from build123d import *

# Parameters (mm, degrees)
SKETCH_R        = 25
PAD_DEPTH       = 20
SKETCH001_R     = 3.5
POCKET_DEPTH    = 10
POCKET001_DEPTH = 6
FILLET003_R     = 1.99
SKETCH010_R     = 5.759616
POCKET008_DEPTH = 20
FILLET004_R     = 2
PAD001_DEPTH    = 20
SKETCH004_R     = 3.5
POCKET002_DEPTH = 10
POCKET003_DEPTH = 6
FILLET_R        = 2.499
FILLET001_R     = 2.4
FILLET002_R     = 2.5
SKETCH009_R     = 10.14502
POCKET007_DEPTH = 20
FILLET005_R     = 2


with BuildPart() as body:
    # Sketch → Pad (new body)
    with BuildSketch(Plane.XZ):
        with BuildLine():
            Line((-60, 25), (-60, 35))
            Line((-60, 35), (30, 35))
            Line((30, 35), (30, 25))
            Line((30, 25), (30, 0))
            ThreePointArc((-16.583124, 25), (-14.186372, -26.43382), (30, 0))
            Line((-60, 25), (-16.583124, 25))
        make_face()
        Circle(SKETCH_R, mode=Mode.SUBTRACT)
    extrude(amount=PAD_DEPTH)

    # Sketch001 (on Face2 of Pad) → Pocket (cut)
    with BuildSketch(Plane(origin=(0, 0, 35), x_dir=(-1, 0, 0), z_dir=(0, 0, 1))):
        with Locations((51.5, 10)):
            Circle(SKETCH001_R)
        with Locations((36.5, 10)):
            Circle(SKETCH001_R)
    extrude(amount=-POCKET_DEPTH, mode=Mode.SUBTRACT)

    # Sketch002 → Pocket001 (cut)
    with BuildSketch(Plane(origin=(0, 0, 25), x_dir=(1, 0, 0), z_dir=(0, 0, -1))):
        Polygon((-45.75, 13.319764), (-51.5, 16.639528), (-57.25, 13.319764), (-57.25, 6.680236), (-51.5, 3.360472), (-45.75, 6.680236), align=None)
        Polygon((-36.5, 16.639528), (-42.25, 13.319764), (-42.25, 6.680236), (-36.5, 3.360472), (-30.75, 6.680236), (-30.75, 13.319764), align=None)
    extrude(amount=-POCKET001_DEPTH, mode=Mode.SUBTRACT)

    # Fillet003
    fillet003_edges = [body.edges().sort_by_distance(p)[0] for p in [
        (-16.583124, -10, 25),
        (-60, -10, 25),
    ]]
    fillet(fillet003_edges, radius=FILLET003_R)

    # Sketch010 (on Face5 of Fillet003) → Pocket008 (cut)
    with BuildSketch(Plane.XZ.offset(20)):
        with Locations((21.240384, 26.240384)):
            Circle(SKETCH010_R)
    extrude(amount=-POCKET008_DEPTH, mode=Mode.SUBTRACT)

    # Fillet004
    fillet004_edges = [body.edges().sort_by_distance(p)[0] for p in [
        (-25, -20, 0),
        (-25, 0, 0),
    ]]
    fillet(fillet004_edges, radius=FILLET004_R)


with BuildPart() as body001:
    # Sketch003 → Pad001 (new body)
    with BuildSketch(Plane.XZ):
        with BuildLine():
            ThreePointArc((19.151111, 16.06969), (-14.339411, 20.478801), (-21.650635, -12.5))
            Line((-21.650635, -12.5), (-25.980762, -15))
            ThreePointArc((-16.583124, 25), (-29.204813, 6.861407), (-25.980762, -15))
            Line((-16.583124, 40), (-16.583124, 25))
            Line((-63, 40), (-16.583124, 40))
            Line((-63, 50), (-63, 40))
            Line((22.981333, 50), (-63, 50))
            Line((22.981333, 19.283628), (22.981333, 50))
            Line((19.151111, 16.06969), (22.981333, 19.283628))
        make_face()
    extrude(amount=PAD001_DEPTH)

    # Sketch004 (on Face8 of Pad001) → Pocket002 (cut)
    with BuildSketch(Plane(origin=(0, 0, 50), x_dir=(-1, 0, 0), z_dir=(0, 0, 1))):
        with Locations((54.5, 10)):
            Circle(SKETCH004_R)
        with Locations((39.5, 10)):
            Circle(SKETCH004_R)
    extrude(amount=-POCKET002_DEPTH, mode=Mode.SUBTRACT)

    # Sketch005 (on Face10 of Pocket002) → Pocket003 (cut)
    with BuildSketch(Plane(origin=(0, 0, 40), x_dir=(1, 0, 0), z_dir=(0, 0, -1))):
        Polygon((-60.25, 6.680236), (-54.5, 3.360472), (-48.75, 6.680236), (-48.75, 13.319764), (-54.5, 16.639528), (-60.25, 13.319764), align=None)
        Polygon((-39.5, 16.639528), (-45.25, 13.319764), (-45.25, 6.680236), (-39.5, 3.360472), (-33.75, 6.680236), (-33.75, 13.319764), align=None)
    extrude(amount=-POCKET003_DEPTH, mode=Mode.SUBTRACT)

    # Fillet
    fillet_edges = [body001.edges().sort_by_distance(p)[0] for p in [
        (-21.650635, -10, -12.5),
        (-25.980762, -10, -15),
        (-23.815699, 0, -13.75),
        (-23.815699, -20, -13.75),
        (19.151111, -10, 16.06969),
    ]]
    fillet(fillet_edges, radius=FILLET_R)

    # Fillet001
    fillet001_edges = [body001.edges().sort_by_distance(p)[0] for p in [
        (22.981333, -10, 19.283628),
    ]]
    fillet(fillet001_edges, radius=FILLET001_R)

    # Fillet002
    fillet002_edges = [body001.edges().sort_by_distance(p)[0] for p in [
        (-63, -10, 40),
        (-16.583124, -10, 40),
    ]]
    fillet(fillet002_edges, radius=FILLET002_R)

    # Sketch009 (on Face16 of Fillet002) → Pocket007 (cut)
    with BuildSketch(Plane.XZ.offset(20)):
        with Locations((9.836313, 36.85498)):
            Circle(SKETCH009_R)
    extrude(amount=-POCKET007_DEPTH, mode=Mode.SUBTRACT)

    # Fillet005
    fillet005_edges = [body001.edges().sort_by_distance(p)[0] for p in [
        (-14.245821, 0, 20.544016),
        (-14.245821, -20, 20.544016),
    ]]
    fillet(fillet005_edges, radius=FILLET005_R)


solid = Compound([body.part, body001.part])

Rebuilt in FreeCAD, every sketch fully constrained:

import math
import FreeCAD as App
import Part
import Sketcher

V = App.Vector
Q = App.Units.Quantity


def edges_at(feature, points):
    """Names of the edges that pass closest to the given points."""
    edges = feature.Shape.Edges
    near = lambda p: min(range(len(edges)), key=lambda i: edges[i].distToShape(Part.Vertex(*p))[0])
    return sorted({f"Edge{near(p) + 1}" for p in points})


def add_polygon(sketch, points):
    """Adds a closed chain of lines whose ends are joined by coincident constraints."""
    first, n = sketch.GeometryCount, len(points)
    for a, b in zip(points, points[1:] + points[:1]):
        sketch.addGeometry(Part.LineSegment(App.Vector(*a, 0), App.Vector(*b, 0)), False)
    for i in range(n):
        sketch.addConstraint(Sketcher.Constraint("Coincident", first + i, 2, first + (i + 1) % n, 1))

doc = App.newDocument("Part")
params = doc.addObject("Spreadsheet::Sheet", "Params")
for row, (alias, value) in enumerate([
    ("sketch1_diameter", "50 mm"),
    ("sketch1_radius", "30 mm"),
    ("sketch1_width", "90 mm"),
    ("sketch1_height", "10 mm"),
    ("sketch1_height2", "35 mm"),
    ("pad1_length", "20 mm"),
    ("sketch2_diameter", "7 mm"),
    ("pocket1_length", "10 mm"),
    ("pocket2_length", "6 mm"),
    ("fillet_radius", "1.99 mm"),
    ("pocket3_length", "20 mm"),
    ("fillet2_radius", "2 mm"),
    ("sketch5_radius", "25 mm"),
    ("sketch5_radius2", "29.999999 mm"),
    ("sketch5_height", "10 mm"),
    ("sketch5_height2", "15 mm"),
    ("pad2_length", "20 mm"),
    ("sketch6_diameter", "7 mm"),
    ("pocket4_length", "10 mm"),
    ("pocket5_length", "6 mm"),
    ("fillet3_radius", "2.499 mm"),
    ("fillet4_radius", "2.4 mm"),
    ("fillet5_radius", "2.5 mm"),
    ("pocket6_length", "20 mm"),
    ("fillet6_radius", "2 mm"),
], start=1):
    params.set(f"A{row}", alias)
    params.set(f"B{row}", "=" + value)
    params.setAlias(f"B{row}", alias)

body = doc.addObject("PartDesign::Body", "Body")

# Sketch on XZ plane
sketch1 = body.newObject("Sketcher::SketchObject", "Sketch")
sketch1.AttachmentSupport = (doc.getObject("XZ_Plane"), [""])
sketch1.MapMode = "FlatFace"
sketch1.addGeometry(Part.LineSegment(V(-60, 35, 0), V(-60, 25, 0)), False)
sketch1.addGeometry(Part.LineSegment(V(-60, 25, 0), V(-17, 25, 0)), False)
sketch1.addGeometry(Part.ArcOfCircle(Part.Circle(V(0, 0, 0), V(0, 0, 1), 30), math.radians(124), math.radians(360)), False)
sketch1.addGeometry(Part.LineSegment(V(30, 0, 0), V(30, 35, 0)), False)
sketch1.addGeometry(Part.LineSegment(V(30, 35, 0), V(-60, 35, 0)), False)
sketch1.addGeometry(Part.Circle(V(0, 0, 0), V(0, 0, 1), 25), False)
sketch1.addConstraint(Sketcher.Constraint("Coincident", 0, 2, 1, 1))
sketch1.addConstraint(Sketcher.Constraint("Coincident", 1, 2, 2, 1))
sketch1.addConstraint(Sketcher.Constraint("Tangent", 2, 2, 3, 1))
sketch1.addConstraint(Sketcher.Constraint("Coincident", 3, 2, 4, 1))
sketch1.addConstraint(Sketcher.Constraint("Coincident", 4, 2, 0, 1))
sketch1.addConstraint(Sketcher.Constraint("Vertical", 0))
sketch1.addConstraint(Sketcher.Constraint("Horizontal", 1))
sketch1.addConstraint(Sketcher.Constraint("Vertical", 3))
sketch1.addConstraint(Sketcher.Constraint("Horizontal", 4))
sketch1.addConstraint(Sketcher.Constraint("Coincident", 2, 3, -1, 1))
sketch1.addConstraint(Sketcher.Constraint("Coincident", 5, 3, -1, 1))
sketch1.addConstraint(Sketcher.Constraint("Diameter", 5, 50.0))
sketch1.addConstraint(Sketcher.Constraint("Radius", 2, 30.0))
sketch1.addConstraint(Sketcher.Constraint("DistanceX", 4, 2, 4, 1, 90.0))
sketch1.addConstraint(Sketcher.Constraint("DistanceY", 0, 2, 0, 1, 10.0))
sketch1.addConstraint(Sketcher.Constraint("DistanceY", 3, 1, 3, 2, 35.0))
sketch1.setExpression("Constraints[11]", "Params.sketch1_diameter")
sketch1.setExpression("Constraints[12]", "Params.sketch1_radius")
sketch1.setExpression("Constraints[13]", "Params.sketch1_width")
sketch1.setExpression("Constraints[14]", "Params.sketch1_height")
sketch1.setExpression("Constraints[15]", "Params.sketch1_height2")
pad1 = body.newObject("PartDesign::Pad", "Pad")
pad1.Profile = sketch1
pad1.setExpression("Length", "Params.pad1_length")

# Sketch on XY plane
sketch2 = body.newObject("Sketcher::SketchObject", "Sketch001")
sketch2.AttachmentSupport = (doc.getObject("XY_Plane"), [""])
sketch2.MapMode = "FlatFace"
sketch2.AttachmentOffset = App.Placement(V(0, 0, 35), App.Rotation())
sketch2.addGeometry(Part.Circle(V(-51.5, -10, 0), V(0, 0, 1), 3.5), False)
sketch2.addGeometry(Part.Circle(V(-36.5, -10, 0), V(0, 0, 1), 3.5), False)
sketch2.addConstraint(Sketcher.Constraint("Equal", 0, 1))
sketch2.addConstraint(Sketcher.Constraint("Horizontal", 0, 3, 1, 3))
sketch2.addConstraint(Sketcher.Constraint("Diameter", 0, 7.0))
sketch2.addConstraint(Sketcher.Constraint("DistanceY", 0, 3, -1, 1, 10.0))
sketch2.addConstraint(Sketcher.Constraint("DistanceX", 0, 3, 1, 3, 15.0))
sketch2.addConstraint(Sketcher.Constraint("DistanceX", 0, 3, -1, 1, 51.5))
sketch2.setExpression("Constraints[2]", "Params.sketch2_diameter")
pocket1 = body.newObject("PartDesign::Pocket", "Pocket")
pocket1.Profile = sketch2
pocket1.setExpression("Length", "Params.pocket1_length")

# Sketch on XY plane
sketch3 = body.newObject("Sketcher::SketchObject", "Sketch002")
sketch3.AttachmentSupport = (doc.getObject("XY_Plane"), [""])
sketch3.MapMode = "FlatFace"
sketch3.AttachmentOffset = App.Placement(V(0, 0, 25), App.Rotation())
add_polygon(sketch3, [(-46, -13), (-52, -17), (-57, -13), (-57, -7), (-52, -3), (-46, -7)])  # lines 0-5
add_polygon(sketch3, [(-36, -17), (-42, -13), (-42, -7), (-36, -3), (-31, -7), (-31, -13)])  # lines 6-11
sketch3.addConstraint(Sketcher.Constraint("Vertical", 2))
sketch3.addConstraint(Sketcher.Constraint("Vertical", 5))
sketch3.addConstraint(Sketcher.Constraint("Vertical", 7))
sketch3.addConstraint(Sketcher.Constraint("Vertical", 10))
sketch3.addConstraint(Sketcher.Constraint("Parallel", 0, 3))
sketch3.addConstraint(Sketcher.Constraint("Parallel", 1, 4))
sketch3.addConstraint(Sketcher.Constraint("Parallel", 4, 6))
sketch3.addConstraint(Sketcher.Constraint("Parallel", 3, 8))
sketch3.addConstraint(Sketcher.Constraint("Parallel", 6, 9))
sketch3.addConstraint(Sketcher.Constraint("Parallel", 8, 11))
sketch3.addConstraint(Sketcher.Constraint("Horizontal", 2, 2, 4, 2))
sketch3.addConstraint(Sketcher.Constraint("Horizontal", 1, 2, 5, 2))
sketch3.addConstraint(Sketcher.Constraint("Horizontal", 5, 2, 6, 2))
sketch3.addConstraint(Sketcher.Constraint("Horizontal", 4, 2, 7, 2))
sketch3.addConstraint(Sketcher.Constraint("Horizontal", 3, 2, 8, 2))
sketch3.addConstraint(Sketcher.Constraint("Horizontal", 7, 2, 9, 2))
sketch3.addConstraint(Sketcher.Constraint("Horizontal", 6, 2, 10, 2))
sketch3.addConstraint(Sketcher.Constraint("Vertical", 0, 2, 3, 2))
sketch3.addConstraint(Sketcher.Constraint("Angle", 0, Q("-150 deg")))
sketch3.addConstraint(Sketcher.Constraint("DistanceX", 1, 2, 6, 2, 15.0))
sketch3.addConstraint(Sketcher.Constraint("DistanceX", 0, 2, -1, 1, 51.5))
sketch3.addConstraint(Sketcher.Constraint("DistanceX", 2, 2, 4, 2, 11.5))
sketch3.addConstraint(Sketcher.Constraint("DistanceY", 2, 1, 2, 2, 6.639528))
sketch3.addConstraint(Sketcher.Constraint("DistanceY", 0, 2, -1, 1, 16.639528))
pocket2 = body.newObject("PartDesign::Pocket", "Pocket001")
pocket2.Profile = sketch3
pocket2.setExpression("Length", "Params.pocket2_length")
pocket2.Reversed = True
doc.recompute()

fillet = body.newObject("PartDesign::Fillet", "Fillet")
fillet.Base = (pocket2, edges_at(pocket2, [(-16.583, -10, 25), (-60, -10, 25)]))
fillet.setExpression("Radius", "Params.fillet_radius")

# Sketch on XZ plane
sketch4 = body.newObject("Sketcher::SketchObject", "Sketch003")
sketch4.AttachmentSupport = (doc.getObject("XZ_Plane"), [""])
sketch4.MapMode = "FlatFace"
sketch4.AttachmentOffset = App.Placement(V(0, 0, 20), App.Rotation())
sketch4.addGeometry(Part.Circle(V(21, 26, 0), V(0, 0, 1), 6), False)
sketch4.addConstraint(Sketcher.Constraint("Diameter", 0, 11.519232))
sketch4.addConstraint(Sketcher.Constraint("DistanceX", -1, 1, 0, 3, 21.240384))
sketch4.addConstraint(Sketcher.Constraint("DistanceY", -1, 1, 0, 3, 26.240384))
pocket3 = body.newObject("PartDesign::Pocket", "Pocket002")
pocket3.Profile = sketch4
pocket3.setExpression("Length", "Params.pocket3_length")
doc.recompute()

fillet2 = body.newObject("PartDesign::Fillet", "Fillet001")
fillet2.Base = (pocket3, edges_at(pocket3, [(-25, -20, 0), (-25, 0, 0)]))
fillet2.setExpression("Radius", "Params.fillet2_radius")
body2 = doc.addObject("PartDesign::Body", "Body001")

# Sketch on XZ plane
sketch5 = body2.newObject("Sketcher::SketchObject", "Sketch004")
sketch5.AttachmentSupport = (doc.getObject("XZ_Plane001"), [""])
sketch5.MapMode = "FlatFace"
sketch5.addGeometry(Part.ArcOfCircle(Part.Circle(V(0, 0, 0), V(0, 0, 1), 25), math.radians(40), math.radians(210)), False)
sketch5.addGeometry(Part.LineSegment(V(19.2, 16.1, 0), V(23, 19.3, 0)), False)
sketch5.addGeometry(Part.LineSegment(V(23, 19.3, 0), V(23, 50, 0)), False)
sketch5.addGeometry(Part.LineSegment(V(23, 50, 0), V(-63, 50, 0)), False)
sketch5.addGeometry(Part.LineSegment(V(-63, 50, 0), V(-63, 40, 0)), False)
sketch5.addGeometry(Part.LineSegment(V(-63, 40, 0), V(-16.6, 40, 0)), False)
sketch5.addGeometry(Part.LineSegment(V(-16.6, 40, 0), V(-16.6, 25, 0)), False)
sketch5.addGeometry(Part.ArcOfCircle(Part.Circle(V(0, 0, 0), V(0, 0, 1), 30), math.radians(124), math.radians(210)), False)
sketch5.addGeometry(Part.LineSegment(V(-26, -15, 0), V(-21.7, -12.5, 0)), False)
sketch5.addConstraint(Sketcher.Constraint("Coincident", 0, 1, 1, 1))
sketch5.addConstraint(Sketcher.Constraint("Coincident", 1, 2, 2, 1))
sketch5.addConstraint(Sketcher.Constraint("Coincident", 2, 2, 3, 1))
sketch5.addConstraint(Sketcher.Constraint("Coincident", 3, 2, 4, 1))
sketch5.addConstraint(Sketcher.Constraint("Coincident", 4, 2, 5, 1))
sketch5.addConstraint(Sketcher.Constraint("Coincident", 5, 2, 6, 1))
sketch5.addConstraint(Sketcher.Constraint("Coincident", 6, 2, 7, 1))
sketch5.addConstraint(Sketcher.Constraint("Coincident", 7, 2, 8, 1))
sketch5.addConstraint(Sketcher.Constraint("Coincident", 8, 2, 0, 2))
sketch5.addConstraint(Sketcher.Constraint("Vertical", 2))
sketch5.addConstraint(Sketcher.Constraint("Horizontal", 3))
sketch5.addConstraint(Sketcher.Constraint("Vertical", 4))
sketch5.addConstraint(Sketcher.Constraint("Horizontal", 5))
sketch5.addConstraint(Sketcher.Constraint("Vertical", 6))
sketch5.addConstraint(Sketcher.Constraint("Coincident", 0, 3, -1, 1))
sketch5.addConstraint(Sketcher.Constraint("Coincident", 7, 3, -1, 1))
sketch5.addConstraint(Sketcher.Constraint("Equal", 1, 8))
sketch5.addConstraint(Sketcher.Constraint("Radius", 0, 25.0))
sketch5.addConstraint(Sketcher.Constraint("Radius", 7, 29.999999))
sketch5.addConstraint(Sketcher.Constraint("DistanceY", 4, 2, 4, 1, 10.0))
sketch5.addConstraint(Sketcher.Constraint("DistanceY", 6, 2, 6, 1, 15.0))
sketch5.addConstraint(Sketcher.Constraint("Angle", 1, Q("40.000001 deg")))
sketch5.addConstraint(Sketcher.Constraint("Angle", 8, Q("30 deg")))
sketch5.addConstraint(Sketcher.Constraint("DistanceY", -1, 1, 2, 2, 50.0))
sketch5.addConstraint(Sketcher.Constraint("DistanceX", 3, 2, -1, 1, 63.0))
sketch5.addConstraint(Sketcher.Constraint("DistanceY", 7, 2, -1, 1, 15.0))
sketch5.addConstraint(Sketcher.Constraint("DistanceY", 2, 1, 2, 2, 30.716372))
sketch5.setExpression("Constraints[17]", "Params.sketch5_radius")
sketch5.setExpression("Constraints[18]", "Params.sketch5_radius2")
sketch5.setExpression("Constraints[19]", "Params.sketch5_height")
sketch5.setExpression("Constraints[20]", "Params.sketch5_height2")
pad2 = body2.newObject("PartDesign::Pad", "Pad001")
pad2.Profile = sketch5
pad2.setExpression("Length", "Params.pad2_length")

# Sketch on XY plane
sketch6 = body2.newObject("Sketcher::SketchObject", "Sketch005")
sketch6.AttachmentSupport = (doc.getObject("XY_Plane001"), [""])
sketch6.MapMode = "FlatFace"
sketch6.AttachmentOffset = App.Placement(V(0, 0, 50), App.Rotation())
sketch6.addGeometry(Part.Circle(V(-54.5, -10, 0), V(0, 0, 1), 3.5), False)
sketch6.addGeometry(Part.Circle(V(-39.5, -10, 0), V(0, 0, 1), 3.5), False)
sketch6.addConstraint(Sketcher.Constraint("Equal", 0, 1))
sketch6.addConstraint(Sketcher.Constraint("Horizontal", 0, 3, 1, 3))
sketch6.addConstraint(Sketcher.Constraint("Diameter", 0, 7.0))
sketch6.addConstraint(Sketcher.Constraint("DistanceY", 0, 3, -1, 1, 10.0))
sketch6.addConstraint(Sketcher.Constraint("DistanceX", 0, 3, 1, 3, 15.0))
sketch6.addConstraint(Sketcher.Constraint("DistanceX", 0, 3, -1, 1, 54.5))
sketch6.setExpression("Constraints[2]", "Params.sketch6_diameter")
pocket4 = body2.newObject("PartDesign::Pocket", "Pocket003")
pocket4.Profile = sketch6
pocket4.setExpression("Length", "Params.pocket4_length")

# Sketch on XY plane
sketch7 = body2.newObject("Sketcher::SketchObject", "Sketch006")
sketch7.AttachmentSupport = (doc.getObject("XY_Plane001"), [""])
sketch7.MapMode = "FlatFace"
sketch7.AttachmentOffset = App.Placement(V(0, 0, 40), App.Rotation())
add_polygon(sketch7, [(-60, -7), (-54, -3), (-49, -7), (-49, -13), (-54, -17), (-60, -13)])  # lines 0-5
add_polygon(sketch7, [(-40, -17), (-45, -13), (-45, -7), (-40, -3), (-34, -7), (-34, -13)])  # lines 6-11
sketch7.addConstraint(Sketcher.Constraint("Vertical", 2))
sketch7.addConstraint(Sketcher.Constraint("Vertical", 5))
sketch7.addConstraint(Sketcher.Constraint("Vertical", 7))
sketch7.addConstraint(Sketcher.Constraint("Vertical", 10))
sketch7.addConstraint(Sketcher.Constraint("Parallel", 0, 3))
sketch7.addConstraint(Sketcher.Constraint("Parallel", 1, 4))
sketch7.addConstraint(Sketcher.Constraint("Parallel", 4, 6))
sketch7.addConstraint(Sketcher.Constraint("Parallel", 3, 8))
sketch7.addConstraint(Sketcher.Constraint("Parallel", 6, 9))
sketch7.addConstraint(Sketcher.Constraint("Parallel", 8, 11))
sketch7.addConstraint(Sketcher.Constraint("Horizontal", 2, 2, 4, 2))
sketch7.addConstraint(Sketcher.Constraint("Horizontal", 1, 2, 5, 2))
sketch7.addConstraint(Sketcher.Constraint("Horizontal", 4, 2, 6, 2))
sketch7.addConstraint(Sketcher.Constraint("Horizontal", 5, 2, 7, 2))
sketch7.addConstraint(Sketcher.Constraint("Horizontal", 0, 2, 8, 2))
sketch7.addConstraint(Sketcher.Constraint("Horizontal", 7, 2, 9, 2))
sketch7.addConstraint(Sketcher.Constraint("Horizontal", 6, 2, 10, 2))
sketch7.addConstraint(Sketcher.Constraint("Vertical", 0, 2, 3, 2))
sketch7.addConstraint(Sketcher.Constraint("Angle", 0, Q("30 deg")))
sketch7.addConstraint(Sketcher.Constraint("DistanceX", 4, 2, 6, 2, 15.0))
sketch7.addConstraint(Sketcher.Constraint("DistanceX", 0, 2, -1, 1, 54.5))
sketch7.addConstraint(Sketcher.Constraint("DistanceX", 4, 2, 2, 2, 11.5))
sketch7.addConstraint(Sketcher.Constraint("DistanceY", 2, 2, 2, 1, 6.639528))
sketch7.addConstraint(Sketcher.Constraint("DistanceY", 0, 2, -1, 1, 3.360472))
pocket5 = body2.newObject("PartDesign::Pocket", "Pocket004")
pocket5.Profile = sketch7
pocket5.setExpression("Length", "Params.pocket5_length")
pocket5.Reversed = True
doc.recompute()

fillet3 = body2.newObject("PartDesign::Fillet", "Fillet002")
fillet3.Base = (pocket5, edges_at(pocket5, [
    (-21.651, -10, -12.5),
    (-25.981, -10, -15),
    (-23.816, 0, -13.75),
    (-23.816, -20, -13.75),
    (19.151, -10, 16.07),
]))
fillet3.setExpression("Radius", "Params.fillet3_radius")
doc.recompute()

fillet4 = body2.newObject("PartDesign::Fillet", "Fillet003")
fillet4.Base = (fillet3, edges_at(fillet3, [(22.981, -10, 19.284)]))
fillet4.setExpression("Radius", "Params.fillet4_radius")
doc.recompute()

fillet5 = body2.newObject("PartDesign::Fillet", "Fillet004")
fillet5.Base = (fillet4, edges_at(fillet4, [(-63, -10, 40), (-16.583, -10, 40)]))
fillet5.setExpression("Radius", "Params.fillet5_radius")

# Sketch on XZ plane
sketch8 = body2.newObject("Sketcher::SketchObject", "Sketch007")
sketch8.AttachmentSupport = (doc.getObject("XZ_Plane001"), [""])
sketch8.MapMode = "FlatFace"
sketch8.AttachmentOffset = App.Placement(V(0, 0, 20), App.Rotation())
sketch8.addGeometry(Part.Circle(V(10, 37, 0), V(0, 0, 1), 10), False)
sketch8.addConstraint(Sketcher.Constraint("Diameter", 0, 20.29004))
sketch8.addConstraint(Sketcher.Constraint("DistanceY", -1, 1, 0, 3, 36.85498))
sketch8.addConstraint(Sketcher.Constraint("DistanceX", -1, 1, 0, 3, 9.836313))
pocket6 = body2.newObject("PartDesign::Pocket", "Pocket005")
pocket6.Profile = sketch8
pocket6.setExpression("Length", "Params.pocket6_length")
doc.recompute()

fillet6 = body2.newObject("PartDesign::Fillet", "Fillet005")
fillet6.Base = (pocket6, edges_at(pocket6, [(-14.246, 0, 20.544), (-14.246, -20, 20.544)]))
fillet6.setExpression("Radius", "Params.fillet6_radius")

doc.recompute()
